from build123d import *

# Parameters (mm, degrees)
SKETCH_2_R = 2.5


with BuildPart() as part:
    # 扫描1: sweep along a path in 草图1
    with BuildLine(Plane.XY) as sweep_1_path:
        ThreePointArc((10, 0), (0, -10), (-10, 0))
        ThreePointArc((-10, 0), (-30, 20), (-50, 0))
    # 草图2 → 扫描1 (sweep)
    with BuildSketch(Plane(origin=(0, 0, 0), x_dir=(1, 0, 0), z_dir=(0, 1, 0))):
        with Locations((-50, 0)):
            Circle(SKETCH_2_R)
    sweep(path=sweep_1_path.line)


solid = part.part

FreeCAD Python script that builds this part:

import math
import FreeCAD as App
import Part
import Sketcher

V = App.Vector

doc = App.newDocument("Part")
body = doc.addObject("PartDesign::Body", "Body")

sketch1 = body.newObject("Sketcher::SketchObject", "Sketch")
sketch1.AttachmentSupport = (doc.getObject("XZ_Plane"), [""])
sketch1.MapMode = "FlatFace"
sketch1.addGeometry(Part.Circle(V(-50, 0, 0), V(0, 0, 1), 2.5), False)
sketch1.addConstraint(Sketcher.Constraint("PointOnObject", 0, 3, -1))
sketch1.addConstraint(Sketcher.Constraint("Diameter", 0, 5.0))
sketch1.addConstraint(Sketcher.Constraint("DistanceX", 0, 3, -1, 1, 50.0))

sketch2 = body.newObject("Sketcher::SketchObject", "Sketch001")
sketch2.AttachmentSupport = (doc.getObject("XY_Plane"), [""])
sketch2.MapMode = "FlatFace"
sketch2.addGeometry(Part.ArcOfCircle(Part.Circle(V(0, 0, 0), V(0, 0, 1), 10), math.radians(180), math.radians(360)), False)
sketch2.addGeometry(Part.ArcOfCircle(Part.Circle(V(-30, 0, 0), V(0, 0, 1), 20), math.radians(0), math.radians(180)), False)
sketch2.addConstraint(Sketcher.Constraint("Tangent", 0, 1, 1, 1))
sketch2.addConstraint(Sketcher.Constraint("Coincident", 0, 3, -1, 1))
sketch2.addConstraint(Sketcher.Constraint("PointOnObject", 1, 3, -1))
sketch2.addConstraint(Sketcher.Constraint("PointOnObject", 0, 2, -1))
sketch2.addConstraint(Sketcher.Constraint("PointOnObject", 1, 2, -1))
sketch2.addConstraint(Sketcher.Constraint("Radius", 0, 10.0))
sketch2.addConstraint(Sketcher.Constraint("Radius", 1, 20.0))
doc.recompute()

additivepipe = body.newObject("PartDesign::AdditivePipe", "AdditivePipe")
additivepipe.Profile = sketch1
additivepipe.Spine = (sketch2, ["Edge1", "Edge2"])

doc.recompute()
